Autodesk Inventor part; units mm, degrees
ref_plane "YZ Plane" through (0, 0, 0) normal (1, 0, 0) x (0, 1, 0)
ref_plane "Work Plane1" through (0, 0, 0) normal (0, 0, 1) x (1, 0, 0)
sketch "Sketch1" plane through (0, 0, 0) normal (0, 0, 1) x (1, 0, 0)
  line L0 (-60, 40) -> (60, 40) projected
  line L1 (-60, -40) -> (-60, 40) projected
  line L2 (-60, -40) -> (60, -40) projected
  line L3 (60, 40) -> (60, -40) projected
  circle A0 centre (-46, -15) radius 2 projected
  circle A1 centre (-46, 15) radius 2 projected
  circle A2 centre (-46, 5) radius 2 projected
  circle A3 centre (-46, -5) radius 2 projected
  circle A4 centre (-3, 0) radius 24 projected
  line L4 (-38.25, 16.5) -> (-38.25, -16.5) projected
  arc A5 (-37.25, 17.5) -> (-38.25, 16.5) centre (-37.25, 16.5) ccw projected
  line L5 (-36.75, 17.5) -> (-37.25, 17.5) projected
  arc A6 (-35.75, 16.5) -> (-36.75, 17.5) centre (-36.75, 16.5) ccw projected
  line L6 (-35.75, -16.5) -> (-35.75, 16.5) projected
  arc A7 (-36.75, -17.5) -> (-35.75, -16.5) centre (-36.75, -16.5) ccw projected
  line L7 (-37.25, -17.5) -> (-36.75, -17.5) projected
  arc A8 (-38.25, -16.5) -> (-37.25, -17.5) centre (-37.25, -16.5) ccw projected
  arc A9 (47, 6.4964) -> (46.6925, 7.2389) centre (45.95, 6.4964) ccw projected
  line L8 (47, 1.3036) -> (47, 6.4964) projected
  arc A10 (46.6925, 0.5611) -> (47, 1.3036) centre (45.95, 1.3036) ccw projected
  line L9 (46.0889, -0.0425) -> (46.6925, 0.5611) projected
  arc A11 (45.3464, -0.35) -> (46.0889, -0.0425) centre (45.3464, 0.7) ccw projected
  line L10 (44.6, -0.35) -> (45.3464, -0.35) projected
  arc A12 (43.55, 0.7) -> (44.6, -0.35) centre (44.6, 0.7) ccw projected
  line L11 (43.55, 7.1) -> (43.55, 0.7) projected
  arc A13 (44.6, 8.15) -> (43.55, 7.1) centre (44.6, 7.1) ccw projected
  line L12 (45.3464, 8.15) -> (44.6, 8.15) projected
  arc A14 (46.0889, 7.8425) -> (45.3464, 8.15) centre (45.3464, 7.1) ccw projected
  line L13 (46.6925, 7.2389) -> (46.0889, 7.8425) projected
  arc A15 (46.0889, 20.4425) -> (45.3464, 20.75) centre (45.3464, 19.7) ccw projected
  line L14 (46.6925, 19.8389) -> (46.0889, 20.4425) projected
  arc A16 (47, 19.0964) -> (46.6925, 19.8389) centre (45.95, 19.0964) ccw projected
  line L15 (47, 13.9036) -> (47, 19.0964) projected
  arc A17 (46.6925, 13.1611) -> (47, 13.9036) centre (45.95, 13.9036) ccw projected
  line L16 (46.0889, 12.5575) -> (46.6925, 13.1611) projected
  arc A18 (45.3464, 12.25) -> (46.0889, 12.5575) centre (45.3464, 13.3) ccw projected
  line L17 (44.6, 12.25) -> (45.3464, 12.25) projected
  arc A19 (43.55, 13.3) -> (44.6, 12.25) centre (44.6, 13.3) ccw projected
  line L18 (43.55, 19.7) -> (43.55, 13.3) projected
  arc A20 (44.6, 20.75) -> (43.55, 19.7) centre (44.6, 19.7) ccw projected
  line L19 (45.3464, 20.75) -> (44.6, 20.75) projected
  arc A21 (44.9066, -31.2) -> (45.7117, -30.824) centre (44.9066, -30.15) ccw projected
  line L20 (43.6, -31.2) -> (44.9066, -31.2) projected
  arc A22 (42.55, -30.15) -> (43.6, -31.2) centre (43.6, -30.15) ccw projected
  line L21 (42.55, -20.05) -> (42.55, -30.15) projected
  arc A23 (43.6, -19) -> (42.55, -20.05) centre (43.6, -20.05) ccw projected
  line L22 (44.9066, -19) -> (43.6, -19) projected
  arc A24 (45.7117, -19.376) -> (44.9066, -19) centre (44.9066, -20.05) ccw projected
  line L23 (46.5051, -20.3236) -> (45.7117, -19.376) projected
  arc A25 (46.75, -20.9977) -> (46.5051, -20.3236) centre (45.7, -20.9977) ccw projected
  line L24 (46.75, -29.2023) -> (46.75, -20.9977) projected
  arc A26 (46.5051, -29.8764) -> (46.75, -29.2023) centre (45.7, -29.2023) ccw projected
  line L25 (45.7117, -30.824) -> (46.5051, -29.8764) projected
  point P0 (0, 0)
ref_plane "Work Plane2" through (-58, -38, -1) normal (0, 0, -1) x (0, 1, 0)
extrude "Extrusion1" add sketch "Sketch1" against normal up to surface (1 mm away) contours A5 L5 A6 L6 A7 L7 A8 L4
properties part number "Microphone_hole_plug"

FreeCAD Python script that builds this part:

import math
import FreeCAD as App
import Part
import Sketcher

V = App.Vector
Q = App.Units.Quantity

doc = App.newDocument("Part")
body = doc.addObject("PartDesign::Body", "Body")

# Sketch on XY plane
sketch1 = doc.addObject("Sketcher::SketchObject", "Sketch")
body.addObject(sketch1)
sketch1.AttachmentSupport = (doc.XY_Plane, [""])
sketch1.MapMode = "FlatFace"
sketch1.addGeometry([
    Part.ArcOfCircle(Part.Circle(V(-37.25, 16.5, 0), V(0, 0, 1), 1), math.radians(90), math.radians(180)),  # 0
    Part.LineSegment(V(-38.25, 16.5, 0), V(-38.25, -16.5, 0)),  # 1
    Part.ArcOfCircle(Part.Circle(V(-37.25, -16.5, 0), V(0, 0, 1), 1), math.radians(180), math.radians(270)),  # 2
    Part.LineSegment(V(-37.25, -17.5, 0), V(-36.75, -17.5, 0)),  # 3
    Part.ArcOfCircle(Part.Circle(V(-36.75, -16.5, 0), V(0, 0, 1), 1), math.radians(-90), math.radians(0)),  # 4
    Part.LineSegment(V(-35.75, -16.5, 0), V(-35.75, 16.5, 0)),  # 5
    Part.ArcOfCircle(Part.Circle(V(-36.75, 16.5, 0), V(0, 0, 1), 1), math.radians(0), math.radians(90)),  # 6
    Part.LineSegment(V(-36.75, 17.5, 0), V(-37.25, 17.5, 0)),  # 7
], False)
sketch1.addConstraint([
    Sketcher.Constraint("Tangent", 0, 2, 1, 1),
    Sketcher.Constraint("Tangent", 1, 2, 2, 1),
    Sketcher.Constraint("Tangent", 2, 2, 3, 1),
    Sketcher.Constraint("Tangent", 3, 2, 4, 1),
    Sketcher.Constraint("Tangent", 4, 2, 5, 1),
    Sketcher.Constraint("Tangent", 5, 2, 6, 1),
    Sketcher.Constraint("Tangent", 6, 2, 7, 1),
    Sketcher.Constraint("Tangent", 7, 2, 0, 1),
    Sketcher.Constraint("Vertical", 1),
    Sketcher.Constraint("Horizontal", 3),
    Sketcher.Constraint("Vertical", 5),
    Sketcher.Constraint("Horizontal", 7),
    Sketcher.Constraint("Equal", 0, 2),
    Sketcher.Constraint("Equal", 2, 4),
    Sketcher.Constraint("Equal", 4, 6),
    Sketcher.Constraint("Radius", 0, Q("1 mm")),
    Sketcher.Constraint("DistanceY", 1, 2, 1, 1, Q("33 mm")),
    Sketcher.Constraint("DistanceX", 3, 1, 3, 2, Q("0.5 mm")),
    Sketcher.Constraint("DistanceY", -1, 1, 0, 3, Q("16.5 mm")),
    Sketcher.Constraint("DistanceX", 0, 3, -1, 1, Q("37.25 mm")),
])
pad1 = doc.addObject("PartDesign::Pad", "Pad")
body.addObject(pad1)
pad1.Profile = sketch1
pad1.Length = 1
pad1.Reversed = True

doc.recompute()
